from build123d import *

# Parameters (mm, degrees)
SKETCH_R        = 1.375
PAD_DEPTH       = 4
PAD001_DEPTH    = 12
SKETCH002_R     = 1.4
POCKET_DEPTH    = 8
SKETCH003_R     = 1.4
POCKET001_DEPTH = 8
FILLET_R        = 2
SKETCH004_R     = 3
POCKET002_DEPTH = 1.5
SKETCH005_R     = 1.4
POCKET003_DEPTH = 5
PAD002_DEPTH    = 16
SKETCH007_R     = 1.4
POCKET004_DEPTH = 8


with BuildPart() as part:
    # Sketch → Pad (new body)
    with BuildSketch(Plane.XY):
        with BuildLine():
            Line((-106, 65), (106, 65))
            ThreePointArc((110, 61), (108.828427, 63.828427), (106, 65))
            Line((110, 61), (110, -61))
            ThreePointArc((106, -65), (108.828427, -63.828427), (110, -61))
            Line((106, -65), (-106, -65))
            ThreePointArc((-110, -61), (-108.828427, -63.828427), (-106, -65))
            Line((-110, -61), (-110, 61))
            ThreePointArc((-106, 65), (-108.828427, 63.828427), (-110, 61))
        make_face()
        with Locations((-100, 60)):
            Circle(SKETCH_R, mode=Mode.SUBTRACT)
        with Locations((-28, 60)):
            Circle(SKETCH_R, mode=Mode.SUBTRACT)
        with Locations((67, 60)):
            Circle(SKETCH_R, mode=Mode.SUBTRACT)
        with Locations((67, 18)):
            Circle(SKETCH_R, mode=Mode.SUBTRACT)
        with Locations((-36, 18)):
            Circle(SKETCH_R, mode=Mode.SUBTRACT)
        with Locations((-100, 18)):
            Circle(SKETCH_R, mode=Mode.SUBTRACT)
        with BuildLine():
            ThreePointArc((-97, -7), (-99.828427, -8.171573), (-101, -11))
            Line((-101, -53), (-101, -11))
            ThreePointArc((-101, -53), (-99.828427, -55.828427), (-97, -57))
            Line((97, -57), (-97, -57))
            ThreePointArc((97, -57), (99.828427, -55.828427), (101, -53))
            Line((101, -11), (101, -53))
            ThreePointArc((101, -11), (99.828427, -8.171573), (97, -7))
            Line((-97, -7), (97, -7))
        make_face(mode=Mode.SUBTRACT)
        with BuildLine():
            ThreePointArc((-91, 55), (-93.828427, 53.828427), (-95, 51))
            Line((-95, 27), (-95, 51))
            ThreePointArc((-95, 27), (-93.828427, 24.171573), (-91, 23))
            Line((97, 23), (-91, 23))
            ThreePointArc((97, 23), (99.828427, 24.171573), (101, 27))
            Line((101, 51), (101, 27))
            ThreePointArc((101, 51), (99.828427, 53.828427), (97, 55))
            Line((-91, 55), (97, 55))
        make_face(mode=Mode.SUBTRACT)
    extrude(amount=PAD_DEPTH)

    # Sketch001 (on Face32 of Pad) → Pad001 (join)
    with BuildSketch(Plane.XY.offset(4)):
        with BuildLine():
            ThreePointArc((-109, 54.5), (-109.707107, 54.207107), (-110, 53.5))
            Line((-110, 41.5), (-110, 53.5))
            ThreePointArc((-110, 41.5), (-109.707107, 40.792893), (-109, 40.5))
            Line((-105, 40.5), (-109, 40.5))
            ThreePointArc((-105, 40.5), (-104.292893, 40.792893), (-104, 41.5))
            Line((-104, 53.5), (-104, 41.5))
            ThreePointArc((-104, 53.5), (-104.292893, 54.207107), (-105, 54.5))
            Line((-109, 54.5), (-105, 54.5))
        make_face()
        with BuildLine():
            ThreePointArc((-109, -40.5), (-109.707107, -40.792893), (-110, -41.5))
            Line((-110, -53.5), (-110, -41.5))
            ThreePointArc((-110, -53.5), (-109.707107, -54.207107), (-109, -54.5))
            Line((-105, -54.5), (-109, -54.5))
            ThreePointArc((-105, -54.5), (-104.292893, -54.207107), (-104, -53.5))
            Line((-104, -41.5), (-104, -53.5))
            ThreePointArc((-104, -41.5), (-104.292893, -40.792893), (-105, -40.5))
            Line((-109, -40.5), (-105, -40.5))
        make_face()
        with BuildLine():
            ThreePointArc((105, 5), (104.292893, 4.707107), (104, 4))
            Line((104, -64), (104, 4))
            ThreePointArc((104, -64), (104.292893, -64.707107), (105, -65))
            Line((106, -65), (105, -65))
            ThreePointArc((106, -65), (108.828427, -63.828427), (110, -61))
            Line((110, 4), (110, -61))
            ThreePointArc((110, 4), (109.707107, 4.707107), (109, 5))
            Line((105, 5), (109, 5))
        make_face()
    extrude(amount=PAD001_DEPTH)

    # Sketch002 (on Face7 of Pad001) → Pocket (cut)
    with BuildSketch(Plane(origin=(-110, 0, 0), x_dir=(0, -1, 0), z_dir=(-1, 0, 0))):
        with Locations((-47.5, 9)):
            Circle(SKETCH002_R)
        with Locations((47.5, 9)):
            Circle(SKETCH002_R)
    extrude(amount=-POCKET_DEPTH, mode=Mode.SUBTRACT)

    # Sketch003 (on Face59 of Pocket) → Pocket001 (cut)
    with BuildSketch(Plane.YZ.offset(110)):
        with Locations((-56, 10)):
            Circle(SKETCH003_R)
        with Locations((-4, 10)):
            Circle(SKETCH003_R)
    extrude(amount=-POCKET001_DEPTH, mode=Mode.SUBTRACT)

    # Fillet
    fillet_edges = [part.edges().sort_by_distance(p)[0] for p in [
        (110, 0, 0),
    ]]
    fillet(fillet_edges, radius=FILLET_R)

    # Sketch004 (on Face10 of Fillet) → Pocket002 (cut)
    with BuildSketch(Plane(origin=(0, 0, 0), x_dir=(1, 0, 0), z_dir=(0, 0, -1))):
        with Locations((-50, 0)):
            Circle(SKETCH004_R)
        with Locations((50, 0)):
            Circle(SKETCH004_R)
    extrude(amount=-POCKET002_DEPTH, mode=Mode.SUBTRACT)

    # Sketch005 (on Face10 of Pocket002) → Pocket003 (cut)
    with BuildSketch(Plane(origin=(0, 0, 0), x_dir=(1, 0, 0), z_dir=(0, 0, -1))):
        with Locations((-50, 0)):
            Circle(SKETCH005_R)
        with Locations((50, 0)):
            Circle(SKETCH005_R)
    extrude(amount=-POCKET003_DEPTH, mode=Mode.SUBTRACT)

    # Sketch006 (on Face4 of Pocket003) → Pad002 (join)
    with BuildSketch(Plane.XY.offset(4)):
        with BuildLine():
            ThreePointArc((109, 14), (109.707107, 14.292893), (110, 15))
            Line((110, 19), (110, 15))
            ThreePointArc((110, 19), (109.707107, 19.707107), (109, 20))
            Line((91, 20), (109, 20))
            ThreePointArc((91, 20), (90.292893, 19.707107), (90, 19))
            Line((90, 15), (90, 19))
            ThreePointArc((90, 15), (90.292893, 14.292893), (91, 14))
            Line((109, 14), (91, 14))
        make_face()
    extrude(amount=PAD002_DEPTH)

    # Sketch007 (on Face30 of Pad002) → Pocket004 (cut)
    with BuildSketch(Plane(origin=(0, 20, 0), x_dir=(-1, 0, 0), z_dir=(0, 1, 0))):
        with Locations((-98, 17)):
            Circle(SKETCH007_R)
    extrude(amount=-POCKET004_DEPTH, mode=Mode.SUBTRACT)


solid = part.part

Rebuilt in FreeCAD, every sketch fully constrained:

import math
import FreeCAD as App
import Part
import Sketcher

V = App.Vector


def edges_at(feature, points):
    """Names of the edges that pass closest to the given points."""
    edges = feature.Shape.Edges
    near = lambda p: min(range(len(edges)), key=lambda i: edges[i].distToShape(Part.Vertex(*p))[0])
    return sorted({f"Edge{near(p) + 1}" for p in points})

doc = App.newDocument("Part")
body = doc.addObject("PartDesign::Body", "Body")

sketch1 = doc.addObject("Sketcher::SketchObject", "Sketch")
body.addObject(sketch1)
sketch1.AttachmentSupport = (doc.XY_Plane, [""])
sketch1.MapMode = "FlatFace"
sketch1.addGeometry(Part.LineSegment(V(106, 65, 0), V(-106, 65, 0)), False)
sketch1.addGeometry(Part.ArcOfCircle(Part.Circle(V(-106, 61, 0), V(0, 0, 1), 4), math.radians(90.000006), math.radians(179.999994)), False)
sketch1.addGeometry(Part.LineSegment(V(-110, 61, 0), V(-110, -61, 0)), False)
sketch1.addGeometry(Part.ArcOfCircle(Part.Circle(V(-106, -61, 0), V(0, 0, 1), 4), math.radians(-179.999994), math.radians(-90.000006)), False)
sketch1.addGeometry(Part.LineSegment(V(-106, -65, 0), V(106, -65, 0)), False)
sketch1.addGeometry(Part.ArcOfCircle(Part.Circle(V(106, -61, 0), V(0, 0, 1), 4), math.radians(-89.999994), math.radians(-0.000006)), False)
sketch1.addGeometry(Part.LineSegment(V(110, -61, 0), V(110, 61, 0)), False)
sketch1.addGeometry(Part.ArcOfCircle(Part.Circle(V(106, 61, 0), V(0, 0, 1), 4), math.radians(0.000006), math.radians(89.999994)), False)
sketch1.addGeometry(Part.LineSegment(V(-97, -7, 0), V(97, -7, 0)), False)
sketch1.addGeometry(Part.ArcOfCircle(Part.Circle(V(97, -11, 0), V(0, 0, 1), 4), math.radians(0.000006), math.radians(89.999994)), False)
sketch1.addGeometry(Part.LineSegment(V(101, -11, 0), V(101, -53, 0)), False)
sketch1.addGeometry(Part.ArcOfCircle(Part.Circle(V(97, -53, 0), V(0, 0, 1), 4), math.radians(-89.999994), math.radians(-0.000006)), False)
sketch1.addGeometry(Part.LineSegment(V(97, -57, 0), V(-97, -57, 0)), False)
sketch1.addGeometry(Part.ArcOfCircle(Part.Circle(V(-97, -53, 0), V(0, 0, 1), 4), math.radians(-179.999994), math.radians(-90.000006)), False)
sketch1.addGeometry(Part.LineSegment(V(-101, -53, 0), V(-101, -11, 0)), False)
sketch1.addGeometry(Part.ArcOfCircle(Part.Circle(V(-97, -11, 0), V(0, 0, 1), 4), math.radians(90.000006), math.radians(179.999994)), False)
sketch1.addGeometry(Part.Circle(V(67, 18, 0), V(0, 0, 1), 1.375), False)
sketch1.addGeometry(Part.Circle(V(67, 60, 0), V(0, 0, 1), 1.375), False)
sketch1.addGeometry(Part.LineSegment(V(-91, 55, 0), V(97, 55, 0)), False)
sketch1.addGeometry(Part.ArcOfCircle(Part.Circle(V(97, 51, 0), V(0, 0, 1), 4), math.radians(0.000006), math.radians(89.999994)), False)
sketch1.addGeometry(Part.LineSegment(V(101, 51, 0), V(101, 27, 0)), False)
sketch1.addGeometry(Part.ArcOfCircle(Part.Circle(V(97, 27, 0), V(0, 0, 1), 4), math.radians(-89.999994), math.radians(-0.000006)), False)
sketch1.addGeometry(Part.LineSegment(V(97, 23, 0), V(-91, 23, 0)), False)
sketch1.addGeometry(Part.ArcOfCircle(Part.Circle(V(-91, 27, 0), V(0, 0, 1), 4), math.radians(-179.999994), math.radians(-90.000006)), False)
sketch1.addGeometry(Part.LineSegment(V(-95, 27, 0), V(-95, 51, 0)), False)
sketch1.addGeometry(Part.ArcOfCircle(Part.Circle(V(-91, 51, 0), V(0, 0, 1), 4), math.radians(90.000006), math.radians(179.999994)), False)
sketch1.addGeometry(Part.Circle(V(-36, 18, 0), V(0, 0, 1), 1.375), False)
sketch1.addGeometry(Part.Circle(V(-100, 18, 0), V(0, 0, 1), 1.375), False)
sketch1.addGeometry(Part.Circle(V(-28, 60, 0), V(0, 0, 1), 1.375), False)
sketch1.addGeometry(Part.Circle(V(-100, 60, 0), V(0, 0, 1), 1.375), False)
sketch1.addConstraint(Sketcher.Constraint("Tangent", 0, 2, 1, 1))
sketch1.addConstraint(Sketcher.Constraint("Tangent", 1, 2, 2, 1))
sketch1.addConstraint(Sketcher.Constraint("Tangent", 2, 2, 3, 1))
sketch1.addConstraint(Sketcher.Constraint("Tangent", 3, 2, 4, 1))
sketch1.addConstraint(Sketcher.Constraint("Tangent", 4, 2, 5, 1))
sketch1.addConstraint(Sketcher.Constraint("Tangent", 5, 2, 6, 1))
sketch1.addConstraint(Sketcher.Constraint("Tangent", 6, 2, 7, 1))
sketch1.addConstraint(Sketcher.Constraint("Tangent", 7, 2, 0, 1))
sketch1.addConstraint(Sketcher.Constraint("Tangent", 8, 2, 9, 2))
sketch1.addConstraint(Sketcher.Constraint("Tangent", 9, 1, 10, 1))
sketch1.addConstraint(Sketcher.Constraint("Tangent", 10, 2, 11, 2))
sketch1.addConstraint(Sketcher.Constraint("Tangent", 11, 1, 12, 1))
sketch1.addConstraint(Sketcher.Constraint("Tangent", 12, 2, 13, 2))
sketch1.addConstraint(Sketcher.Constraint("Tangent", 13, 1, 14, 1))
sketch1.addConstraint(Sketcher.Constraint("Tangent", 14, 2, 15, 2))
sketch1.addConstraint(Sketcher.Constraint("Tangent", 15, 1, 8, 1))
sketch1.addConstraint(Sketcher.Constraint("Tangent", 18, 2, 19, 2))
sketch1.addConstraint(Sketcher.Constraint("Tangent", 19, 1, 20, 1))
sketch1.addConstraint(Sketcher.Constraint("Tangent", 20, 2, 21, 2))
sketch1.addConstraint(Sketcher.Constraint("Tangent", 21, 1, 22, 1))
sketch1.addConstraint(Sketcher.Constraint("Tangent", 22, 2, 23, 2))
sketch1.addConstraint(Sketcher.Constraint("Tangent", 23, 1, 24, 1))
sketch1.addConstraint(Sketcher.Constraint("Tangent", 24, 2, 25, 2))
sketch1.addConstraint(Sketcher.Constraint("Tangent", 25, 1, 18, 1))
sketch1.addConstraint(Sketcher.Constraint("Horizontal", 0))
sketch1.addConstraint(Sketcher.Constraint("Vertical", 2))
sketch1.addConstraint(Sketcher.Constraint("Horizontal", 4))
sketch1.addConstraint(Sketcher.Constraint("Vertical", 6))
sketch1.addConstraint(Sketcher.Constraint("Horizontal", 8))
sketch1.addConstraint(Sketcher.Constraint("Vertical", 10))
sketch1.addConstraint(Sketcher.Constraint("Horizontal", 12))
sketch1.addConstraint(Sketcher.Constraint("Vertical", 14))
sketch1.addConstraint(Sketcher.Constraint("Horizontal", 18))
sketch1.addConstraint(Sketcher.Constraint("Vertical", 20))
sketch1.addConstraint(Sketcher.Constraint("Horizontal", 22))
sketch1.addConstraint(Sketcher.Constraint("Vertical", 24))
sketch1.addConstraint(Sketcher.Constraint("Equal", 1, 3))
sketch1.addConstraint(Sketcher.Constraint("Equal", 3, 5))
sketch1.addConstraint(Sketcher.Constraint("Equal", 5, 7))
sketch1.addConstraint(Sketcher.Constraint("Equal", 7, 9))
sketch1.addConstraint(Sketcher.Constraint("Equal", 9, 11))
sketch1.addConstraint(Sketcher.Constraint("Equal", 11, 13))
sketch1.addConstraint(Sketcher.Constraint("Equal", 13, 15))
sketch1.addConstraint(Sketcher.Constraint("Equal", 16, 17))
sketch1.addConstraint(Sketcher.Constraint("Equal", 15, 19))
sketch1.addConstraint(Sketcher.Constraint("Equal", 19, 21))
sketch1.addConstraint(Sketcher.Constraint("Equal", 21, 23))
sketch1.addConstraint(Sketcher.Constraint("Equal", 23, 25))
sketch1.addConstraint(Sketcher.Constraint("Equal", 17, 26))
sketch1.addConstraint(Sketcher.Constraint("Equal", 26, 27))
sketch1.addConstraint(Sketcher.Constraint("Equal", 27, 28))
sketch1.addConstraint(Sketcher.Constraint("Equal", 28, 29))
sketch1.addConstraint(Sketcher.Constraint("Symmetric", 1, 3, 5, 3, -1, 1))
sketch1.addConstraint(Sketcher.Constraint("Horizontal", 16, 3, 26, 3))
sketch1.addConstraint(Sketcher.Constraint("Horizontal", 26, 3, 27, 3))
sketch1.addConstraint(Sketcher.Constraint("Horizontal", 17, 3, 28, 3))
sketch1.addConstraint(Sketcher.Constraint("Horizontal", 28, 3, 29, 3))
sketch1.addConstraint(Sketcher.Constraint("Vertical", 16, 3, 17, 3))
sketch1.addConstraint(Sketcher.Constraint("Vertical", 11, 3, 19, 3))
sketch1.addConstraint(Sketcher.Constraint("Vertical", 27, 3, 29, 3))
sketch1.addConstraint(Sketcher.Constraint("Radius", 1, 4.0))
sketch1.addConstraint(Sketcher.Constraint("Diameter", 16, 2.75))
sketch1.addConstraint(Sketcher.Constraint("DistanceX", 0, 2, 0, 1, 212.0))
sketch1.addConstraint(Sketcher.Constraint("DistanceX", 8, 1, 8, 2, 194.0))
sketch1.addConstraint(Sketcher.Constraint("DistanceX", 18, 1, 18, 2, 188.0))
sketch1.addConstraint(Sketcher.Constraint("DistanceY", 2, 2, 2, 1, 122.0))
sketch1.addConstraint(Sketcher.Constraint("DistanceY", 10, 2, 10, 1, 42.0))
sketch1.addConstraint(Sketcher.Constraint("DistanceY", 20, 2, 20, 1, 24.0))
sketch1.addConstraint(Sketcher.Constraint("DistanceX", -1, 1, 9, 3, 97.0))
sketch1.addConstraint(Sketcher.Constraint("DistanceY", 9, 3, -1, 1, 11.0))
sketch1.addConstraint(Sketcher.Constraint("DistanceX", -1, 1, 16, 3, 67.0))
sketch1.addConstraint(Sketcher.Constraint("DistanceY", -1, 1, 16, 3, 18.0))
sketch1.addConstraint(Sketcher.Constraint("DistanceY", -1, 1, 17, 3, 60.0))
sketch1.addConstraint(Sketcher.Constraint("DistanceY", -1, 1, 19, 3, 51.0))
sketch1.addConstraint(Sketcher.Constraint("DistanceX", 26, 3, -1, 1, 36.0))
sketch1.addConstraint(Sketcher.Constraint("DistanceX", 27, 3, -1, 1, 100.0))
sketch1.addConstraint(Sketcher.Constraint("DistanceX", 28, 3, -1, 1, 28.0))
pad1 = doc.addObject("PartDesign::Pad", "Pad")
body.addObject(pad1)
pad1.Profile = sketch1
pad1.Length = 4

sketch2 = doc.addObject("Sketcher::SketchObject", "Sketch001")
body.addObject(sketch2)
sketch2.AttachmentSupport = (doc.XY_Plane, [""])
sketch2.MapMode = "FlatFace"
sketch2.AttachmentOffset = App.Placement(V(0, 0, 4), App.Rotation())
sketch2.addGeometry(Part.ArcOfCircle(Part.Circle(V(-109.000001, 53.500001, 0), V(0, 0, 1), 0.999999), math.radians(89.999957), math.radians(180.000043)), False)
sketch2.addGeometry(Part.LineSegment(V(-110, 53.5, 0), V(-110, 41.5, 0)), False)
sketch2.addGeometry(Part.ArcOfCircle(Part.Circle(V(-109.000001, 41.499999, 0), V(0, 0, 1), 0.999999), math.radians(179.999957), math.radians(270.000043)), False)
sketch2.addGeometry(Part.LineSegment(V(-109, 40.5, 0), V(-105, 40.5, 0)), False)
sketch2.addGeometry(Part.ArcOfCircle(Part.Circle(V(-104.999999, 41.499999, 0), V(0, 0, 1), 0.999999), math.radians(-90.000043), math.radians(0.000043)), False)
sketch2.addGeometry(Part.LineSegment(V(-104, 41.5, 0), V(-104, 53.5, 0)), False)
sketch2.addGeometry(Part.ArcOfCircle(Part.Circle(V(-104.999999, 53.500001, 0), V(0, 0, 1), 0.999999), math.radians(-0.000043), math.radians(90.000043)), False)
sketch2.addGeometry(Part.LineSegment(V(-105, 54.5, 0), V(-109, 54.5, 0)), False)
sketch2.addGeometry(Part.ArcOfCircle(Part.Circle(V(-109.000001, -41.499999, 0), V(0, 0, 1), 0.999999), math.radians(89.999957), math.radians(180.000043)), False)
sketch2.addGeometry(Part.LineSegment(V(-110, -41.5, 0), V(-110, -53.5, 0)), False)
sketch2.addGeometry(Part.ArcOfCircle(Part.Circle(V(-109.000001, -53.500001, 0), V(0, 0, 1), 0.999999), math.radians(179.999957), math.radians(270.000043)), False)
sketch2.addGeometry(Part.LineSegment(V(-109, -54.5, 0), V(-105, -54.5, 0)), False)
sketch2.addGeometry(Part.ArcOfCircle(Part.Circle(V(-104.999999, -53.500001, 0), V(0, 0, 1), 0.999999), math.radians(-90.000043), math.radians(0.000043)), False)
sketch2.addGeometry(Part.LineSegment(V(-104, -53.5, 0), V(-104, -41.5, 0)), False)
sketch2.addGeometry(Part.ArcOfCircle(Part.Circle(V(-104.999999, -41.499999, 0), V(0, 0, 1), 0.999999), math.radians(-0.000043), math.radians(90.000043)), False)
sketch2.addGeometry(Part.LineSegment(V(-105, -40.5, 0), V(-109, -40.5, 0)), False)
sketch2.addGeometry(Part.ArcOfCircle(Part.Circle(V(104.999999, 4.000001, 0), V(0, 0, 1), 0.999999), math.radians(89.999957), math.radians(180.000043)), False)
sketch2.addGeometry(Part.LineSegment(V(104, 4, 0), V(104, -64, 0)), False)
sketch2.addGeometry(Part.ArcOfCircle(Part.Circle(V(104.999999, -64.000001, 0), V(0, 0, 1), 0.999999), math.radians(179.999957), math.radians(270.000043)), False)
sketch2.addGeometry(Part.LineSegment(V(105, -65, 0), V(106, -65, 0)), False)
sketch2.addGeometry(Part.ArcOfCircle(Part.Circle(V(106, -61, 0), V(0, 0, 1), 4), math.radians(-89.999994), math.radians(-0.000006)), False)
sketch2.addGeometry(Part.LineSegment(V(110, -61, 0), V(110, 4, 0)), False)
sketch2.addGeometry(Part.ArcOfCircle(Part.Circle(V(109.000001, 4.000001, 0), V(0, 0, 1), 0.999999), math.radians(-0.000043), math.radians(90.000043)), False)
sketch2.addGeometry(Part.LineSegment(V(109, 5, 0), V(105, 5, 0)), False)
sketch2.addConstraint(Sketcher.Constraint("Tangent", 0, 2, 1, 1))
sketch2.addConstraint(Sketcher.Constraint("Tangent", 1, 2, 2, 1))
sketch2.addConstraint(Sketcher.Constraint("Tangent", 2, 2, 3, 1))
sketch2.addConstraint(Sketcher.Constraint("Tangent", 3, 2, 4, 1))
sketch2.addConstraint(Sketcher.Constraint("Tangent", 4, 2, 5, 1))
sketch2.addConstraint(Sketcher.Constraint("Tangent", 5, 2, 6, 1))
sketch2.addConstraint(Sketcher.Constraint("Tangent", 6, 2, 7, 1))
sketch2.addConstraint(Sketcher.Constraint("Tangent", 7, 2, 0, 1))
sketch2.addConstraint(Sketcher.Constraint("Tangent", 8, 2, 9, 1))
sketch2.addConstraint(Sketcher.Constraint("Tangent", 9, 2, 10, 1))
sketch2.addConstraint(Sketcher.Constraint("Tangent", 10, 2, 11, 1))
sketch2.addConstraint(Sketcher.Constraint("Tangent", 11, 2, 12, 1))
sketch2.addConstraint(Sketcher.Constraint("Tangent", 12, 2, 13, 1))
sketch2.addConstraint(Sketcher.Constraint("Tangent", 13, 2, 14, 1))
sketch2.addConstraint(Sketcher.Constraint("Tangent", 14, 2, 15, 1))
sketch2.addConstraint(Sketcher.Constraint("Tangent", 15, 2, 8, 1))
sketch2.addConstraint(Sketcher.Constraint("Tangent", 16, 2, 17, 1))
sketch2.addConstraint(Sketcher.Constraint("Tangent", 17, 2, 18, 1))
sketch2.addConstraint(Sketcher.Constraint("Tangent", 18, 2, 19, 1))
sketch2.addConstraint(Sketcher.Constraint("Tangent", 19, 2, 20, 1))
sketch2.addConstraint(Sketcher.Constraint("Tangent", 20, 2, 21, 1))
sketch2.addConstraint(Sketcher.Constraint("Tangent", 21, 2, 22, 1))
sketch2.addConstraint(Sketcher.Constraint("Tangent", 22, 2, 23, 1))
sketch2.addConstraint(Sketcher.Constraint("Tangent", 23, 2, 16, 1))
sketch2.addConstraint(Sketcher.Constraint("Vertical", 1))
sketch2.addConstraint(Sketcher.Constraint("Horizontal", 3))
sketch2.addConstraint(Sketcher.Constraint("Vertical", 5))
sketch2.addConstraint(Sketcher.Constraint("Horizontal", 7))
sketch2.addConstraint(Sketcher.Constraint("Vertical", 9))
sketch2.addConstraint(Sketcher.Constraint("Horizontal", 11))
sketch2.addConstraint(Sketcher.Constraint("Vertical", 13))
sketch2.addConstraint(Sketcher.Constraint("Horizontal", 15))
sketch2.addConstraint(Sketcher.Constraint("Vertical", 17))
sketch2.addConstraint(Sketcher.Constraint("Horizontal", 19))
sketch2.addConstraint(Sketcher.Constraint("Vertical", 21))
sketch2.addConstraint(Sketcher.Constraint("Horizontal", 23))
sketch2.addConstraint(Sketcher.Constraint("Equal", 0, 2))
sketch2.addConstraint(Sketcher.Constraint("Equal", 2, 4))
sketch2.addConstraint(Sketcher.Constraint("Equal", 4, 6))
sketch2.addConstraint(Sketcher.Constraint("Equal", 6, 8))
sketch2.addConstraint(Sketcher.Constraint("Equal", 8, 10))
sketch2.addConstraint(Sketcher.Constraint("Equal", 10, 12))
sketch2.addConstraint(Sketcher.Constraint("Equal", 12, 14))
sketch2.addConstraint(Sketcher.Constraint("Equal", 14, 16))
sketch2.addConstraint(Sketcher.Constraint("Equal", 16, 18))
sketch2.addConstraint(Sketcher.Constraint("Equal", 18, 22))
sketch2.addConstraint(Sketcher.Constraint("Symmetric", 2, 3, 8, 3, -1))
sketch2.addConstraint(Sketcher.Constraint("Symmetric", 6, 3, 12, 3, -1))
sketch2.addConstraint(Sketcher.Constraint("Equal", 15, 23))
sketch2.addConstraint(Sketcher.Constraint("Radius", 0, 0.999999))
sketch2.addConstraint(Sketcher.Constraint("Radius", 20, 4.0))
sketch2.addConstraint(Sketcher.Constraint("DistanceX", 3, 1, 3, 2, 4.0))
sketch2.addConstraint(Sketcher.Constraint("DistanceY", 1, 2, 1, 1, 12.0))
sketch2.addConstraint(Sketcher.Constraint("DistanceY", 17, 2, 17, 1, 68.0))
sketch2.addConstraint(Sketcher.Constraint("DistanceX", 0, 3, -1, 1, 109.000001))
sketch2.addConstraint(Sketcher.Constraint("DistanceX", -1, 1, 16, 3, 104.999999))
sketch2.addConstraint(Sketcher.Constraint("DistanceY", -1, 1, 16, 3, 4.000001))
sketch2.addConstraint(Sketcher.Constraint("DistanceY", 8, 3, 2, 3, 82.999999))
pad2 = doc.addObject("PartDesign::Pad", "Pad001")
body.addObject(pad2)
pad2.Profile = sketch2
pad2.Length = 12

sketch3 = doc.addObject("Sketcher::SketchObject", "Sketch002")
body.addObject(sketch3)
sketch3.AttachmentSupport = (doc.YZ_Plane, [""])
sketch3.MapMode = "FlatFace"
sketch3.AttachmentOffset = App.Placement(V(0, 0, -110), App.Rotation())
sketch3.addGeometry(Part.Circle(V(47.5, 9, 0), V(0, 0, 1), 1.4), False)
sketch3.addGeometry(Part.Circle(V(-47.5, 9, 0), V(0, 0, 1), 1.4), False)
sketch3.addConstraint(Sketcher.Constraint("Equal", 0, 1))
sketch3.addConstraint(Sketcher.Constraint("Symmetric", 0, 3, 1, 3, -2))
sketch3.addConstraint(Sketcher.Constraint("Diameter", 0, 2.8))
sketch3.addConstraint(Sketcher.Constraint("DistanceY", -1, 1, 0, 3, 9.0))
sketch3.addConstraint(Sketcher.Constraint("DistanceX", 1, 3, 0, 3, 95.0))
pocket1 = doc.addObject("PartDesign::Pocket", "Pocket")
body.addObject(pocket1)
pocket1.Profile = sketch3
pocket1.Length = 8
pocket1.Reversed = True

sketch4 = doc.addObject("Sketcher::SketchObject", "Sketch003")
body.addObject(sketch4)
sketch4.AttachmentSupport = (doc.YZ_Plane, [""])
sketch4.MapMode = "FlatFace"
sketch4.AttachmentOffset = App.Placement(V(0, 0, 110), App.Rotation())
sketch4.addGeometry(Part.Circle(V(-56, 10, 0), V(0, 0, 1), 1.4), False)
sketch4.addGeometry(Part.Circle(V(-4, 10, 0), V(0, 0, 1), 1.4), False)
sketch4.addConstraint(Sketcher.Constraint("Equal", 0, 1))
sketch4.addConstraint(Sketcher.Constraint("Horizontal", 0, 3, 1, 3))
sketch4.addConstraint(Sketcher.Constraint("Diameter", 0, 2.8))
sketch4.addConstraint(Sketcher.Constraint("DistanceX", 0, 3, -1, 1, 56.0))
sketch4.addConstraint(Sketcher.Constraint("DistanceY", -1, 1, 0, 3, 10.0))
sketch4.addConstraint(Sketcher.Constraint("DistanceX", 1, 3, -1, 1, 4.0))
pocket2 = doc.addObject("PartDesign::Pocket", "Pocket001")
body.addObject(pocket2)
pocket2.Profile = sketch4
pocket2.Length = 8
doc.recompute()

fillet = doc.addObject("PartDesign::Fillet", "Fillet")
body.addObject(fillet)
fillet.Base = (pocket2, edges_at(pocket2, [(110, 0, 0)]))
fillet.Radius = 2

sketch5 = doc.addObject("Sketcher::SketchObject", "Sketch004")
body.addObject(sketch5)
sketch5.AttachmentSupport = (doc.XY_Plane, [""])
sketch5.MapMode = "FlatFace"
sketch5.addGeometry(Part.Circle(V(-50, 0, 0), V(0, 0, 1), 3), False)
sketch5.addGeometry(Part.Circle(V(50, 0, 0), V(0, 0, 1), 3), False)
sketch5.addConstraint(Sketcher.Constraint("Equal", 0, 1))
sketch5.addConstraint(Sketcher.Constraint("Symmetric", 0, 3, 1, 3, -1, 1))
sketch5.addConstraint(Sketcher.Constraint("PointOnObject", 0, 3, -1))
sketch5.addConstraint(Sketcher.Constraint("Diameter", 0, 6.0))
sketch5.addConstraint(Sketcher.Constraint("DistanceX", 0, 3, -1, 1, 50.0))
pocket3 = doc.addObject("PartDesign::Pocket", "Pocket002")
body.addObject(pocket3)
pocket3.Profile = sketch5
pocket3.Length = 1.5
pocket3.Reversed = True

sketch6 = doc.addObject("Sketcher::SketchObject", "Sketch005")
body.addObject(sketch6)
sketch6.AttachmentSupport = (doc.XY_Plane, [""])
sketch6.MapMode = "FlatFace"
sketch6.addGeometry(Part.Circle(V(-50, 0, 0), V(0, 0, 1), 1.4), False)
sketch6.addGeometry(Part.Circle(V(50, 0, 0), V(0, 0, 1), 1.4), False)
sketch6.addConstraint(Sketcher.Constraint("Equal", 0, 1))
sketch6.addConstraint(Sketcher.Constraint("Symmetric", 0, 3, 1, 3, -1, 1))
sketch6.addConstraint(Sketcher.Constraint("PointOnObject", 0, 3, -1))
sketch6.addConstraint(Sketcher.Constraint("Diameter", 0, 2.8))
sketch6.addConstraint(Sketcher.Constraint("DistanceX", 0, 3, -1, 1, 50.0))
pocket4 = doc.addObject("PartDesign::Pocket", "Pocket003")
body.addObject(pocket4)
pocket4.Profile = sketch6
pocket4.Length = 5
pocket4.Reversed = True

sketch7 = doc.addObject("Sketcher::SketchObject", "Sketch006")
body.addObject(sketch7)
sketch7.AttachmentSupport = (doc.XY_Plane, [""])
sketch7.MapMode = "FlatFace"
sketch7.AttachmentOffset = App.Placement(V(0, 0, 4), App.Rotation())
sketch7.addGeometry(Part.ArcOfCircle(Part.Circle(V(109.000001, 14.999999, 0), V(0, 0, 1), 0.999999), math.radians(-90.000043), math.radians(0.000043)), False)
sketch7.addGeometry(Part.LineSegment(V(110, 15, 0), V(110, 19, 0)), False)
sketch7.addGeometry(Part.ArcOfCircle(Part.Circle(V(109.000001, 19.000001, 0), V(0, 0, 1), 0.999999), math.radians(-0.000043), math.radians(90.000043)), False)
sketch7.addGeometry(Part.LineSegment(V(109, 20, 0), V(91, 20, 0)), False)
sketch7.addGeometry(Part.ArcOfCircle(Part.Circle(V(90.999999, 19.000001, 0), V(0, 0, 1), 0.999999), math.radians(89.999957), math.radians(180.000043)), False)
sketch7.addGeometry(Part.LineSegment(V(90, 19, 0), V(90, 15, 0)), False)
sketch7.addGeometry(Part.ArcOfCircle(Part.Circle(V(90.999999, 14.999999, 0), V(0, 0, 1), 0.999999), math.radians(179.999957), math.radians(270.000043)), False)
sketch7.addGeometry(Part.LineSegment(V(91, 14, 0), V(109, 14, 0)), False)
sketch7.addConstraint(Sketcher.Constraint("Tangent", 0, 2, 1, 1))
sketch7.addConstraint(Sketcher.Constraint("Tangent", 1, 2, 2, 1))
sketch7.addConstraint(Sketcher.Constraint("Tangent", 2, 2, 3, 1))
sketch7.addConstraint(Sketcher.Constraint("Tangent", 3, 2, 4, 1))
sketch7.addConstraint(Sketcher.Constraint("Tangent", 4, 2, 5, 1))
sketch7.addConstraint(Sketcher.Constraint("Tangent", 5, 2, 6, 1))
sketch7.addConstraint(Sketcher.Constraint("Tangent", 6, 2, 7, 1))
sketch7.addConstraint(Sketcher.Constraint("Tangent", 7, 2, 0, 1))
sketch7.addConstraint(Sketcher.Constraint("Vertical", 1))
sketch7.addConstraint(Sketcher.Constraint("Horizontal", 3))
sketch7.addConstraint(Sketcher.Constraint("Vertical", 5))
sketch7.addConstraint(Sketcher.Constraint("Horizontal", 7))
sketch7.addConstraint(Sketcher.Constraint("Equal", 0, 2))
sketch7.addConstraint(Sketcher.Constraint("Equal", 2, 4))
sketch7.addConstraint(Sketcher.Constraint("Equal", 4, 6))
sketch7.addConstraint(Sketcher.Constraint("Radius", 0, 0.999999))
sketch7.addConstraint(Sketcher.Constraint("DistanceX", 3, 2, 3, 1, 18.0))
sketch7.addConstraint(Sketcher.Constraint("DistanceY", 1, 1, 1, 2, 4.0))
sketch7.addConstraint(Sketcher.Constraint("DistanceX", -1, 1, 0, 3, 109.000001))
sketch7.addConstraint(Sketcher.Constraint("DistanceY", -1, 1, 0, 3, 14.999999))
pad3 = doc.addObject("PartDesign::Pad", "Pad002")
body.addObject(pad3)
pad3.Profile = sketch7
pad3.Length = 16

sketch8 = doc.addObject("Sketcher::SketchObject", "Sketch007")
body.addObject(sketch8)
sketch8.AttachmentSupport = (doc.XZ_Plane, [""])
sketch8.MapMode = "FlatFace"
sketch8.AttachmentOffset = App.Placement(V(0, 0, -20), App.Rotation())
sketch8.addGeometry(Part.Circle(V(98, 17, 0), V(0, 0, 1), 1.4), False)
sketch8.addConstraint(Sketcher.Constraint("Diameter", 0, 2.8))
sketch8.addConstraint(Sketcher.Constraint("DistanceX", -1, 1, 0, 3, 98.0))
sketch8.addConstraint(Sketcher.Constraint("DistanceY", -1, 1, 0, 3, 17.0))
pocket5 = doc.addObject("PartDesign::Pocket", "Pocket004")
body.addObject(pocket5)
pocket5.Profile = sketch8
pocket5.Length = 8
pocket5.Reversed = True

doc.recompute()
